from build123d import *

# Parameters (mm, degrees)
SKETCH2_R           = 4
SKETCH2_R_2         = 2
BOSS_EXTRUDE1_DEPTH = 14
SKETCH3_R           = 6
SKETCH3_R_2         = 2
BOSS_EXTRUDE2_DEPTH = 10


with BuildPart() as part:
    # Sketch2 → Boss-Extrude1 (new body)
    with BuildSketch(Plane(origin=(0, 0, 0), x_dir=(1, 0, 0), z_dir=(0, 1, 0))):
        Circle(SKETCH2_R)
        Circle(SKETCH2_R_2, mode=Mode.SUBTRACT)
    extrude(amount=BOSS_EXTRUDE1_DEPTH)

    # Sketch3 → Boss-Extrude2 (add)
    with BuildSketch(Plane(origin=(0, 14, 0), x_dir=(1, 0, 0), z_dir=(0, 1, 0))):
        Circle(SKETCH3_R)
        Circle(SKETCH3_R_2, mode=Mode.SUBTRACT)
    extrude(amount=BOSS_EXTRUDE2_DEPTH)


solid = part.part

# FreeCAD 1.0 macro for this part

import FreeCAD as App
import Part
import Sketcher
from FreeCAD import Vector

doc = App.newDocument("Part")
body = doc.addObject("PartDesign::Body", "Body")

# Sketch on XZ plane
sketch1 = doc.addObject("Sketcher::SketchObject", "Sketch")
body.addObject(sketch1)
sketch1.AttachmentSupport = (doc.XZ_Plane, [""])
sketch1.MapMode = "FlatFace"
sketch1.addGeometry(Part.Circle(Vector(0, 0, 0), Vector(0, 0, 1), 4), False)
sketch1.addGeometry(Part.Circle(Vector(0, 0, 0), Vector(0, 0, 1), 2), False)
sketch1.addConstraint(Sketcher.Constraint("Coincident", 0, 3, -1, 1))
sketch1.addConstraint(Sketcher.Constraint("Coincident", 1, 3, -1, 1))
sketch1.addConstraint(Sketcher.Constraint("Diameter", 0, 8.0))
sketch1.addConstraint(Sketcher.Constraint("Diameter", 1, 4.0))
pad1 = doc.addObject("PartDesign::Pad", "Pad")
body.addObject(pad1)
pad1.Profile = sketch1
pad1.Length = 14
pad1.Reversed = True

# Sketch on XZ plane
sketch2 = doc.addObject("Sketcher::SketchObject", "Sketch001")
body.addObject(sketch2)
sketch2.AttachmentSupport = (doc.XZ_Plane, [""])
sketch2.MapMode = "FlatFace"
sketch2.AttachmentOffset = App.Placement(Vector(0, 0, -14), App.Rotation())
sketch2.addGeometry(Part.Circle(Vector(0, 0, 0), Vector(0, 0, 1), 6), False)
sketch2.addGeometry(Part.Circle(Vector(0, 0, 0), Vector(0, 0, 1), 2), False)
sketch2.addConstraint(Sketcher.Constraint("Coincident", 0, 3, -1, 1))
sketch2.addConstraint(Sketcher.Constraint("Coincident", 1, 3, -1, 1))
sketch2.addConstraint(Sketcher.Constraint("Diameter", 0, 12.0))
sketch2.addConstraint(Sketcher.Constraint("Diameter", 1, 4.0))
pad2 = doc.addObject("PartDesign::Pad", "Pad001")
body.addObject(pad2)
pad2.Profile = sketch2
pad2.Length = 10
pad2.Reversed = True

doc.recompute()
